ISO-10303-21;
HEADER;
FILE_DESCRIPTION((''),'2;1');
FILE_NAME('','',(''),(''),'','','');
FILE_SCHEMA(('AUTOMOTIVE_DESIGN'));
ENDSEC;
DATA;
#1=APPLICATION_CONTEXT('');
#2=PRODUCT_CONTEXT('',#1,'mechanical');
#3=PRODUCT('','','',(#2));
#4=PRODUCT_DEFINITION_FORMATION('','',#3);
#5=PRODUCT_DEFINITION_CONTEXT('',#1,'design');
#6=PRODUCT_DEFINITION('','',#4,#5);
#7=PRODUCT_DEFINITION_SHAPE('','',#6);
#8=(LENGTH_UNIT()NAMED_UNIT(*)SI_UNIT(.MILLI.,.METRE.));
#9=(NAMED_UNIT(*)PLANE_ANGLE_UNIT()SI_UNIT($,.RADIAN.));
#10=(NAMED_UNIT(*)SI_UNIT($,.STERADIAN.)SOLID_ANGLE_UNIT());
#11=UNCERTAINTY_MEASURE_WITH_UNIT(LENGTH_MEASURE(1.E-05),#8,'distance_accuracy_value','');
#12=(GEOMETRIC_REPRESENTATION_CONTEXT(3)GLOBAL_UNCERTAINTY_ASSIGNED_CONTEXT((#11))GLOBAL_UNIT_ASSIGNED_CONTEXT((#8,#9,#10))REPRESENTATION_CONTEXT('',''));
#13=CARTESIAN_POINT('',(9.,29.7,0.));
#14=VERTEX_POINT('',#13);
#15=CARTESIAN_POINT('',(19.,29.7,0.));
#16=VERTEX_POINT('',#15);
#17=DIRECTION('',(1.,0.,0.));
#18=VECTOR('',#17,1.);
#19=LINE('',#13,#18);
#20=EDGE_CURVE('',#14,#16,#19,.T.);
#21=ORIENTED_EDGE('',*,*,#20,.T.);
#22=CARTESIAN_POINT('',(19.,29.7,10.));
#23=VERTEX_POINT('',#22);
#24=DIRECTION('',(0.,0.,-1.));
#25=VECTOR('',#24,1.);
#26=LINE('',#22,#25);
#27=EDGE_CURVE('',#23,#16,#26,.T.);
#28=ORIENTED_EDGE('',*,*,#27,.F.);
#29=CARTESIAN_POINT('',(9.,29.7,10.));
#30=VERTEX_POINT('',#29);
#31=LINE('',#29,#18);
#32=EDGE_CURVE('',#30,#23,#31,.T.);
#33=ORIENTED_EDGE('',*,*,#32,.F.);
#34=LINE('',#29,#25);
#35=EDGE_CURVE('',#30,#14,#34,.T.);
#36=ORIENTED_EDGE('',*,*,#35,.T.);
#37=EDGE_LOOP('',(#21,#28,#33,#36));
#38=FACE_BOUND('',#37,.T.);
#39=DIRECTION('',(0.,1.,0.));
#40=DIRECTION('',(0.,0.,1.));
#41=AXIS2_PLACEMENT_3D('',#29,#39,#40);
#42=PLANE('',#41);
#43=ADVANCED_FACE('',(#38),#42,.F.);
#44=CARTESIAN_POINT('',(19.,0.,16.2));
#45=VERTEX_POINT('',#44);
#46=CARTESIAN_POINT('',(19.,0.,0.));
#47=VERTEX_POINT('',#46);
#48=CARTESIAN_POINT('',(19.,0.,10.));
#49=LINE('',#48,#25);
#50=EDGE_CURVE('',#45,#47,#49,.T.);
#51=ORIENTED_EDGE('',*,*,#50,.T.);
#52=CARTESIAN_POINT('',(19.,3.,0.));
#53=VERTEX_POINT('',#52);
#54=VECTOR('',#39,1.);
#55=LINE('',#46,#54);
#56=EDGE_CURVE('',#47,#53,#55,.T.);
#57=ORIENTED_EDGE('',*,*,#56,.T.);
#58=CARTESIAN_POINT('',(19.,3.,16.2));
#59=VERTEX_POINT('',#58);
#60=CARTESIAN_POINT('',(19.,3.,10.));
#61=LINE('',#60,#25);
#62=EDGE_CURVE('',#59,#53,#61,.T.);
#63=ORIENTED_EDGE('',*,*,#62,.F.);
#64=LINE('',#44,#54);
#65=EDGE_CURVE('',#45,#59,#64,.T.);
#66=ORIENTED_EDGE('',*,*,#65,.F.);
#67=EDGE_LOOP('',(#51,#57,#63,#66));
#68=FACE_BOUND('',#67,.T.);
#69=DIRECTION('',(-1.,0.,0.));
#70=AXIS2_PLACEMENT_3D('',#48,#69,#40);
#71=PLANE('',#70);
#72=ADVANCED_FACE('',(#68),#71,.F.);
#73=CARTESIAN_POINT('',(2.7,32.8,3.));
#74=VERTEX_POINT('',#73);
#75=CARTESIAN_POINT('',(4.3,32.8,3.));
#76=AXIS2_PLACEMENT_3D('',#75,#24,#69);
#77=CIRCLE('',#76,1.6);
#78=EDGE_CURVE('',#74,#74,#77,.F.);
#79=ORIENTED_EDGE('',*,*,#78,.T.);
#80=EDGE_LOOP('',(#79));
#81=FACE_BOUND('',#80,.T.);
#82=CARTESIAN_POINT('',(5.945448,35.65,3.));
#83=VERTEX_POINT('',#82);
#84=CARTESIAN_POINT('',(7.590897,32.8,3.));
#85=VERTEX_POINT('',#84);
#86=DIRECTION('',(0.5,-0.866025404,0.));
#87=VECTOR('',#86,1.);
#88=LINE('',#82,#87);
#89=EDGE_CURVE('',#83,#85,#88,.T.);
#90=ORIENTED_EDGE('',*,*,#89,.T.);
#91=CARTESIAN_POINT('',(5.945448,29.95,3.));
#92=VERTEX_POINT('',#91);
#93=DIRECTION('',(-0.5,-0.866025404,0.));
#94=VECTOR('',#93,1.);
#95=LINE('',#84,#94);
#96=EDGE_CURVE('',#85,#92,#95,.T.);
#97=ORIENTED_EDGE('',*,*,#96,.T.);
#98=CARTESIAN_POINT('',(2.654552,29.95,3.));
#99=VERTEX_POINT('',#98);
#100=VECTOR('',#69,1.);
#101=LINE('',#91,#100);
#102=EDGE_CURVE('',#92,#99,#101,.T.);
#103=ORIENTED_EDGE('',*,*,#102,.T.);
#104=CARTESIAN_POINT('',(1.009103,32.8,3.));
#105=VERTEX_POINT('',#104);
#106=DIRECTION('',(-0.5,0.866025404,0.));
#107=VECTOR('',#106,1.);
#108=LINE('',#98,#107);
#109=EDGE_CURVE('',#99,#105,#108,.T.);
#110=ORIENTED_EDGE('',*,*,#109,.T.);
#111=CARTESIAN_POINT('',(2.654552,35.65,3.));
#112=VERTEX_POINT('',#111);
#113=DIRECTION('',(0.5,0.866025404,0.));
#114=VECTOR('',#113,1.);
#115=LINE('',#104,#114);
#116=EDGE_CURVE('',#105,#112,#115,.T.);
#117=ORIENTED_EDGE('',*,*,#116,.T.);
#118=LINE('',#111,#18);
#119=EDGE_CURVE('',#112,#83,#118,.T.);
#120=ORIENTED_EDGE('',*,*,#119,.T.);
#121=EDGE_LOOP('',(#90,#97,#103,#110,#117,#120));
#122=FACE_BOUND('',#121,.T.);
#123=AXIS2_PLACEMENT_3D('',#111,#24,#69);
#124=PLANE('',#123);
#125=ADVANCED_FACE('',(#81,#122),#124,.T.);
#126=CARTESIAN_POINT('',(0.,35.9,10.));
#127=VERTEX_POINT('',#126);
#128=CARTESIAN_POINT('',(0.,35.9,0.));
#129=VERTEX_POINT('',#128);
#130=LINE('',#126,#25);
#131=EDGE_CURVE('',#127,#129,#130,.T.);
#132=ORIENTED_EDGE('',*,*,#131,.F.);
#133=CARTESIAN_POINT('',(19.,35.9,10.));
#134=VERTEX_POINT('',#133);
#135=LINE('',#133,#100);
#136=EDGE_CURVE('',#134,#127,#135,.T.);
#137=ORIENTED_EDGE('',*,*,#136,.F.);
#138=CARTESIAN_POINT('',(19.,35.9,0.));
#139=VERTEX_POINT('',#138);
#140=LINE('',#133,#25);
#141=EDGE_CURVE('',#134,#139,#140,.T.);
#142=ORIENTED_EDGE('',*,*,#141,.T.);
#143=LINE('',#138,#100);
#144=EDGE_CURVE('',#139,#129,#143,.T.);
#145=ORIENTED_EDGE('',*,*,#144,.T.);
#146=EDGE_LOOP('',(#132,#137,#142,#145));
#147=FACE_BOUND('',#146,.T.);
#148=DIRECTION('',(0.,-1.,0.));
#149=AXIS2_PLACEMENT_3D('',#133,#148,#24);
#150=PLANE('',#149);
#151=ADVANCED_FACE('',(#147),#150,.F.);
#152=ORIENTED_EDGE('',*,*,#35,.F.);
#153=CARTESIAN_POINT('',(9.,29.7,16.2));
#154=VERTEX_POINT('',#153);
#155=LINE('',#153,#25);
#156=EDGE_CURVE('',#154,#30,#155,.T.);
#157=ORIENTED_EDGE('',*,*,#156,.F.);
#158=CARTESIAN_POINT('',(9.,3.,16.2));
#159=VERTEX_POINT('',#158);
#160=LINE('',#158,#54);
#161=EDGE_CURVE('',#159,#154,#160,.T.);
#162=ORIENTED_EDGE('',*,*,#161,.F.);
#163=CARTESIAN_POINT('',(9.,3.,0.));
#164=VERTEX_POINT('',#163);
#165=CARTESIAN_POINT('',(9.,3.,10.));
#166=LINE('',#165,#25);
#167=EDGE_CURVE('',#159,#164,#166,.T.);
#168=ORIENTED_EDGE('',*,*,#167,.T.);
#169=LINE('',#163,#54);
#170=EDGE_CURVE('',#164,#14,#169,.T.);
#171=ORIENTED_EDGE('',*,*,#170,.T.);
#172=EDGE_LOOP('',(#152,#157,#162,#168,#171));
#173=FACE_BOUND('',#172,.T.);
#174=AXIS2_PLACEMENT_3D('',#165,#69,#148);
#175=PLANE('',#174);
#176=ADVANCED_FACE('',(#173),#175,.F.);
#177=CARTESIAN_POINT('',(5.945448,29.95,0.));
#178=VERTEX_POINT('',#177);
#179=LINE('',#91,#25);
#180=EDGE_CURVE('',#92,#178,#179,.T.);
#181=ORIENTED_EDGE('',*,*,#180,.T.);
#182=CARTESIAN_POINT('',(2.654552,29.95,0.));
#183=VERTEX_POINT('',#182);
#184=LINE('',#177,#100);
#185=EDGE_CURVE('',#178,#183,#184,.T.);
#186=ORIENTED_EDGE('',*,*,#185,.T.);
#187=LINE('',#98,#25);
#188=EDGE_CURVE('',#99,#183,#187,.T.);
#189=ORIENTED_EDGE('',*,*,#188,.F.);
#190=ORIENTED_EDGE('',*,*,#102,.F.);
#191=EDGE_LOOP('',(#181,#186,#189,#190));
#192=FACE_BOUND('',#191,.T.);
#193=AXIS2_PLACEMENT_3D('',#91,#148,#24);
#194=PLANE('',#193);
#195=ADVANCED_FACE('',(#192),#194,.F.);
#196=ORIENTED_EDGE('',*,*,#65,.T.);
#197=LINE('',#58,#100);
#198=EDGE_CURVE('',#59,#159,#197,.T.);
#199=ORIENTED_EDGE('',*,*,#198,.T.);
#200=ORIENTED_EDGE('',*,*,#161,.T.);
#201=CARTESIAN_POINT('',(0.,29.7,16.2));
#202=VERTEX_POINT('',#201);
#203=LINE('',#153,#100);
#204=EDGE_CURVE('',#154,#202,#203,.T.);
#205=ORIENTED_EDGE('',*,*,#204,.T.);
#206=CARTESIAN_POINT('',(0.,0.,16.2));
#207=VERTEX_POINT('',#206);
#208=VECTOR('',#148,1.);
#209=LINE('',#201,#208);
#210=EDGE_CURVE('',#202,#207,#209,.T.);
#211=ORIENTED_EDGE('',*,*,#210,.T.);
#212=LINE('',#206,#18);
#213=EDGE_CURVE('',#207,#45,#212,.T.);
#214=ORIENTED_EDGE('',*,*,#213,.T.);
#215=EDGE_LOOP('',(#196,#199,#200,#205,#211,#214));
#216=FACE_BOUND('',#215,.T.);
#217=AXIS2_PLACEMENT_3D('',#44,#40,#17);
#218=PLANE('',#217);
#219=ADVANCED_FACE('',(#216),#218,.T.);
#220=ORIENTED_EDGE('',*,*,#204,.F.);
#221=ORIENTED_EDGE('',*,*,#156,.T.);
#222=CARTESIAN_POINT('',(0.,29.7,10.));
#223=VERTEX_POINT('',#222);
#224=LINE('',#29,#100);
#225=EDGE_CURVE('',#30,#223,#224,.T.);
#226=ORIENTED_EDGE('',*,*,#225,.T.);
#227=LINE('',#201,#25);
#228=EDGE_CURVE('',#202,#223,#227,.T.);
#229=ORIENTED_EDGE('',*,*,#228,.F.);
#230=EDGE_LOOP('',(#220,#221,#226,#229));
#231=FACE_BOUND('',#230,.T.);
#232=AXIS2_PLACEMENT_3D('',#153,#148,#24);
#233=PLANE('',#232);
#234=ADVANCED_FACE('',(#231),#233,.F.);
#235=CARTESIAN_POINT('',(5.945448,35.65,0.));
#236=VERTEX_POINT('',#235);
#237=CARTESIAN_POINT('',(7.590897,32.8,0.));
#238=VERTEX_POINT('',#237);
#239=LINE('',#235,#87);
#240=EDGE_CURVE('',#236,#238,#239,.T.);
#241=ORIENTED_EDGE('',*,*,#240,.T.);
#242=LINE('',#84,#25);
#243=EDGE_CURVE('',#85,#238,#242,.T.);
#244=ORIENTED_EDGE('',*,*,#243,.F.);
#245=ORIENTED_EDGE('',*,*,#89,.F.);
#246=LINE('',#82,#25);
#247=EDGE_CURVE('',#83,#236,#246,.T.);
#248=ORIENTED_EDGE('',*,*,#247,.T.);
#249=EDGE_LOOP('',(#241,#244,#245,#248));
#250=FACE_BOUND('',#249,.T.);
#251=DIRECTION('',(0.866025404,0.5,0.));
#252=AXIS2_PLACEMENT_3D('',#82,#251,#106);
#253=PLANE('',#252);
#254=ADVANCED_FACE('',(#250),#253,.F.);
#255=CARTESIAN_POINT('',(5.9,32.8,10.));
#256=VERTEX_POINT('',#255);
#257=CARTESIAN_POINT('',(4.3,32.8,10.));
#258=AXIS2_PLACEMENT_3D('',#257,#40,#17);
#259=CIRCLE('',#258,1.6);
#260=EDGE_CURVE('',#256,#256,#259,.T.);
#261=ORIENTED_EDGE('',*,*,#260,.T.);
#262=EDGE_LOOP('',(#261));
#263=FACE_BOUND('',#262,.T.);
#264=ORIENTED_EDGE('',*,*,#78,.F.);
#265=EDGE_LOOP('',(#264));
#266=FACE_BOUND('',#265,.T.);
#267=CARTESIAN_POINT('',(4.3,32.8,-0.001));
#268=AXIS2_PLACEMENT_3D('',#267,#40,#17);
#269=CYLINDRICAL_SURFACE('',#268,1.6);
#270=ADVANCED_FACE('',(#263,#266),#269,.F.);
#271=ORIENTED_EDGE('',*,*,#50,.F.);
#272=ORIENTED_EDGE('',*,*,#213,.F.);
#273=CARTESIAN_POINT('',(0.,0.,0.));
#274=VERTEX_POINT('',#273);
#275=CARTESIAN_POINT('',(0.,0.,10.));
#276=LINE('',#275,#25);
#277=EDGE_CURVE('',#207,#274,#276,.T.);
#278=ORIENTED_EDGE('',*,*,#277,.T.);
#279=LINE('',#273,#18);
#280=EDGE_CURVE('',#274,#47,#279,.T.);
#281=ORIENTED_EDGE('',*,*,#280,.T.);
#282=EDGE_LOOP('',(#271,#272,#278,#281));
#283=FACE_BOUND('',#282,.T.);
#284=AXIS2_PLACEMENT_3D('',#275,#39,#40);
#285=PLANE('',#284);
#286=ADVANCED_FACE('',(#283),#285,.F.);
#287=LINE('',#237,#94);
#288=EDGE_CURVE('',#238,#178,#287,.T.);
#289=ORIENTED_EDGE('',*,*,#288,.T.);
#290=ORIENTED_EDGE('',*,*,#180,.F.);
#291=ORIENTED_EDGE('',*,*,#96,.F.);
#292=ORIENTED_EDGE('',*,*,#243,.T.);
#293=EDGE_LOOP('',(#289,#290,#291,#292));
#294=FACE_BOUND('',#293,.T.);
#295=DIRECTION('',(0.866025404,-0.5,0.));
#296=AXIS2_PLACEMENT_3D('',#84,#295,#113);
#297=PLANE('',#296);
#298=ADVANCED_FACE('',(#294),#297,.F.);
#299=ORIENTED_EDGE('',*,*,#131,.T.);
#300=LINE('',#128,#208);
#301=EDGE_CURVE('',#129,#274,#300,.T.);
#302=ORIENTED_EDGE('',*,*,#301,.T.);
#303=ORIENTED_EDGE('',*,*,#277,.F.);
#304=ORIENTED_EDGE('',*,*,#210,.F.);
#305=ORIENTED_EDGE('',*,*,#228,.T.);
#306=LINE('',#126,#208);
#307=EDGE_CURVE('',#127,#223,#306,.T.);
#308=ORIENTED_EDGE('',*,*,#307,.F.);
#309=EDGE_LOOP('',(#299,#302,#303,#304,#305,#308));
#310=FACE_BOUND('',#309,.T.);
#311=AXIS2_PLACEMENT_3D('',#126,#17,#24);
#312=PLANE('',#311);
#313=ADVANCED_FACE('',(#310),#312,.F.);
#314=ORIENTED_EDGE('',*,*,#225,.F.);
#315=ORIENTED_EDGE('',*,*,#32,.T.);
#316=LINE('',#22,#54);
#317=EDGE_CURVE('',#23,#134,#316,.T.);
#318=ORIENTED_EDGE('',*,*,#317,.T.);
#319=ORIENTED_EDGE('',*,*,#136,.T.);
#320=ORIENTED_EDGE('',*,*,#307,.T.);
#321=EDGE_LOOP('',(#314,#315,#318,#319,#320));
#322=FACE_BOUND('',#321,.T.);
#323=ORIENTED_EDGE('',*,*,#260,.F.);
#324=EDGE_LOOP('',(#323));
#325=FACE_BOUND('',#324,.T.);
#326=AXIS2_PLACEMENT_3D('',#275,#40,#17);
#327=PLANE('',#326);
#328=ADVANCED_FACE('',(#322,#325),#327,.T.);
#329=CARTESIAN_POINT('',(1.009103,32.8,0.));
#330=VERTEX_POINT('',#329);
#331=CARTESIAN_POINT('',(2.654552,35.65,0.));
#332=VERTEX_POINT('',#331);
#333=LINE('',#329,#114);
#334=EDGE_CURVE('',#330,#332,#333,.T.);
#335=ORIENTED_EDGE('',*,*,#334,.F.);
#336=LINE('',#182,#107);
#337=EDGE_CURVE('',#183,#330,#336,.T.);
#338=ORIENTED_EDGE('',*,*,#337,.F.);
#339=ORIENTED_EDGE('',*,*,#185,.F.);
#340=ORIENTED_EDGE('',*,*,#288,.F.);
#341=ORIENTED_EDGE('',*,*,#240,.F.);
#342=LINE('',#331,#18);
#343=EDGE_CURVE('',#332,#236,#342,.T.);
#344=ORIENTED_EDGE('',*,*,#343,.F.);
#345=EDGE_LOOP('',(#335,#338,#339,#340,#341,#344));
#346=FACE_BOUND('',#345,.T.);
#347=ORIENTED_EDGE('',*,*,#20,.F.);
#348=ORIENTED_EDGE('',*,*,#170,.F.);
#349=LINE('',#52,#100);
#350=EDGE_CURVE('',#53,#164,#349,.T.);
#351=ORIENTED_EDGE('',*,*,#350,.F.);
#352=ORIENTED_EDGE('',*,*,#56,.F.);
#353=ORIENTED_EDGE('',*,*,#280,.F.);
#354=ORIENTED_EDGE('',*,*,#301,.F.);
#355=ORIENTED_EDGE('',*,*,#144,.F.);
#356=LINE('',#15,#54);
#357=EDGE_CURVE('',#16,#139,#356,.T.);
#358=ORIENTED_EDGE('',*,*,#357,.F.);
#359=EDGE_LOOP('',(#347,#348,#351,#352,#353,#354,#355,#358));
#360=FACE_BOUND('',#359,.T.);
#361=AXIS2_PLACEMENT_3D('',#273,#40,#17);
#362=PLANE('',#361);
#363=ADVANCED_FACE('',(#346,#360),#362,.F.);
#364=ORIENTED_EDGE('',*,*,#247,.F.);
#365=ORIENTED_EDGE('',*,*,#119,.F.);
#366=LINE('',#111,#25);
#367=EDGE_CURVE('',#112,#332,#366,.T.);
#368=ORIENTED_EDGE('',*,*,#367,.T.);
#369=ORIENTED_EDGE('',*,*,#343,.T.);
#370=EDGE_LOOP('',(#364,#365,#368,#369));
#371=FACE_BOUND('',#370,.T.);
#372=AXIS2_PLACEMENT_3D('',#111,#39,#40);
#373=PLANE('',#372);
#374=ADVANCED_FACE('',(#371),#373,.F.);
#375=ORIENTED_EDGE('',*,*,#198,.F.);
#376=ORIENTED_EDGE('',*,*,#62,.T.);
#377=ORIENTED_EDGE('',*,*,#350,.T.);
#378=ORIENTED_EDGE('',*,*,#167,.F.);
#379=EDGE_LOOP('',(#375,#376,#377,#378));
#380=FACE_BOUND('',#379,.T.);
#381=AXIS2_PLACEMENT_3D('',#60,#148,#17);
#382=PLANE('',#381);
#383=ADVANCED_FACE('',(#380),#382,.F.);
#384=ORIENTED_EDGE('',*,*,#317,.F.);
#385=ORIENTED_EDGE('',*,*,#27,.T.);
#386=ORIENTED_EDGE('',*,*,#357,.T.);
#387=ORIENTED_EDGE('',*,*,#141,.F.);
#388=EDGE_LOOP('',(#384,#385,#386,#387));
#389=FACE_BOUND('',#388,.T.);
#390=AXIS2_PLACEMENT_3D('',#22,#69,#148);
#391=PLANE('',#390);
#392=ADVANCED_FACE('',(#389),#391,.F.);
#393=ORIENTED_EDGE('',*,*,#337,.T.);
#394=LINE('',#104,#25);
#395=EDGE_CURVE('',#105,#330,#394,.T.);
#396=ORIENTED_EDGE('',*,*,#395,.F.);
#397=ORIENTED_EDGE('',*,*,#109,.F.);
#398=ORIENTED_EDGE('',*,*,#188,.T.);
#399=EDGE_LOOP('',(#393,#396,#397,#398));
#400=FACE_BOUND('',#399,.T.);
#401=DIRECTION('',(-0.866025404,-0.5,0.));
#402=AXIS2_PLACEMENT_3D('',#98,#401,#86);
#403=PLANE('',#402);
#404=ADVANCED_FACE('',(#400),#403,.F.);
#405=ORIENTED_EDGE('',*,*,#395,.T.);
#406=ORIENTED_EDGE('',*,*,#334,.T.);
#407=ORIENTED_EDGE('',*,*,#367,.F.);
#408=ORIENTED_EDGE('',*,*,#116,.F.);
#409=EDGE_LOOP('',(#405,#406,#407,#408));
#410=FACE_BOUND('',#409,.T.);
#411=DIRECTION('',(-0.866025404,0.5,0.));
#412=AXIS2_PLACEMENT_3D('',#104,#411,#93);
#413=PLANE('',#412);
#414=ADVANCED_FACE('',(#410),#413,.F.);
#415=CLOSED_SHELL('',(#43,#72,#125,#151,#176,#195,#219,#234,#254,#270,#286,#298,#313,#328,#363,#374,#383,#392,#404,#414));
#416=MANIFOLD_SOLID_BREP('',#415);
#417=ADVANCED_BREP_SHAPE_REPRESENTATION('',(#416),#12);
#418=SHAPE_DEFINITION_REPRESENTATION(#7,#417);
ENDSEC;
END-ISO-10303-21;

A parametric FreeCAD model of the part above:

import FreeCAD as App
import Part
import Sketcher
from FreeCAD import Vector
Q = App.Units.Quantity


def add_polygon(sketch, points):
    """Adds a closed chain of lines whose ends are joined by coincident constraints."""
    first, n = sketch.GeometryCount, len(points)
    for a, b in zip(points, points[1:] + points[:1]):
        sketch.addGeometry(Part.LineSegment(App.Vector(*a, 0), App.Vector(*b, 0)), False)
    for i in range(n):
        sketch.addConstraint(Sketcher.Constraint("Coincident", first + i, 2, first + (i + 1) % n, 1))

doc = App.newDocument("Part")
params = doc.addObject("Spreadsheet::Sheet", "Params")
for row, (alias, value) in enumerate([
    ("sketch1_width", "19 mm"),
    ("sketch1_width2", "10 mm"),
    ("sketch1_height", "3 mm"),
    ("sketch1_height2", "26.7 mm"),
    ("sketch1_height3", "6.2 mm"),
    ("pad1_length", "10 mm"),
    ("sketch2_width", "9 mm"),
    ("sketch2_width2", "19 mm"),
    ("sketch2_height", "3 mm"),
    ("sketch2_height2", "29.7 mm"),
    ("pad2_length", "6.2 mm"),
    ("sketch3_diameter", "3.2 mm"),
    ("pocket2_length", "3 mm"),
], start=1):
    params.set(f"A{row}", alias)
    params.set(f"B{row}", "=" + value)
    params.setAlias(f"B{row}", alias)

body = doc.addObject("PartDesign::Body", "Body")

sketch1 = body.newObject("Sketcher::SketchObject", "Sketch")
sketch1.AttachmentSupport = (doc.getObject("XY_Plane"), [""])
sketch1.MapMode = "FlatFace"
add_polygon(sketch1, [(0, 0), (19, 0), (19, 3), (9, 3), (9, 29.7), (19, 29.7), (19, 35.9), (0, 35.9)])
sketch1.addConstraint([
    Sketcher.Constraint("Horizontal", 0),
    Sketcher.Constraint("Vertical", 1),
    Sketcher.Constraint("Horizontal", 2),
    Sketcher.Constraint("Vertical", 3),
    Sketcher.Constraint("Horizontal", 4),
    Sketcher.Constraint("Vertical", 5),
    Sketcher.Constraint("Horizontal", 6),
    Sketcher.Constraint("Vertical", 7),
    Sketcher.Constraint("Coincident", 7, 2, -1, 1),
    Sketcher.Constraint("Vertical", 1, 2, 4, 2),
    Sketcher.Constraint("DistanceX", 0, 1, 0, 2, Q("19 mm")),
    Sketcher.Constraint("DistanceX", 2, 2, 2, 1, Q("10 mm")),
    Sketcher.Constraint("DistanceY", 1, 1, 1, 2, Q("3 mm")),
    Sketcher.Constraint("DistanceY", 3, 1, 3, 2, Q("26.7 mm")),
    Sketcher.Constraint("DistanceY", 5, 1, 5, 2, Q("6.2 mm")),
])
sketch1.setExpression("Constraints[18]", "Params.sketch1_width")
sketch1.setExpression("Constraints[19]", "Params.sketch1_width2")
sketch1.setExpression("Constraints[20]", "Params.sketch1_height")
sketch1.setExpression("Constraints[21]", "Params.sketch1_height2")
sketch1.setExpression("Constraints[22]", "Params.sketch1_height3")
pad1 = body.newObject("PartDesign::Pad", "Pad")
pad1.Profile = sketch1
pad1.setExpression("Length", "Params.pad1_length")

sketch2 = body.newObject("Sketcher::SketchObject", "Sketch001")
sketch2.AttachmentSupport = (doc.getObject("XY_Plane"), [""])
sketch2.MapMode = "FlatFace"
sketch2.AttachmentOffset = App.Placement(Vector(0, 0, 10), App.Rotation())
add_polygon(sketch2, [(9, 29.7), (0, 29.7), (0, 0), (19, 0), (19, 3), (9, 3)])
sketch2.addConstraint([
    Sketcher.Constraint("Horizontal", 0),
    Sketcher.Constraint("Vertical", 1),
    Sketcher.Constraint("Horizontal", 2),
    Sketcher.Constraint("Vertical", 3),
    Sketcher.Constraint("Horizontal", 4),
    Sketcher.Constraint("Vertical", 5),
    Sketcher.Constraint("Coincident", 1, 2, -1, 1),
    Sketcher.Constraint("DistanceX", 0, 2, 0, 1, Q("9 mm")),
    Sketcher.Constraint("DistanceX", 2, 1, 2, 2, Q("19 mm")),
    Sketcher.Constraint("DistanceY", 3, 1, 3, 2, Q("3 mm")),
    Sketcher.Constraint("DistanceY", 1, 2, 1, 1, Q("29.7 mm")),
])
sketch2.setExpression("Constraints[13]", "Params.sketch2_width")
sketch2.setExpression("Constraints[14]", "Params.sketch2_width2")
sketch2.setExpression("Constraints[15]", "Params.sketch2_height")
sketch2.setExpression("Constraints[16]", "Params.sketch2_height2")
pad2 = body.newObject("PartDesign::Pad", "Pad001")
pad2.Profile = sketch2
pad2.setExpression("Length", "Params.pad2_length")

sketch3 = body.newObject("Sketcher::SketchObject", "Sketch002")
sketch3.AttachmentSupport = (doc.getObject("XY_Plane"), [""])
sketch3.MapMode = "FlatFace"
sketch3.AttachmentOffset = App.Placement(Vector(0, 0, 10), App.Rotation())
sketch3.addGeometry(Part.Circle(Vector(4.3, 32.8, 0), Vector(0, 0, 1), 1.6), False)
sketch3.addConstraint([
    Sketcher.Constraint("Diameter", 0, Q("3.2 mm")),
    Sketcher.Constraint("DistanceX", -1, 1, 0, 3, Q("4.3 mm")),
    Sketcher.Constraint("DistanceY", -1, 1, 0, 3, Q("32.8 mm")),
])
sketch3.setExpression("Constraints[0]", "Params.sketch3_diameter")
pocket1 = body.newObject("PartDesign::Pocket", "Pocket")
pocket1.Profile = sketch3
pocket1.Type = "UpToFirst"

sketch4 = body.newObject("Sketcher::SketchObject", "Sketch003")
sketch4.AttachmentSupport = (doc.getObject("XY_Plane"), [""])
sketch4.MapMode = "FlatFace"
add_polygon(sketch4, [(2.654552, 35.65), (5.945448, 35.65), (7.590897, 32.8), (5.945448, 29.95), (2.654552, 29.95), (1.009103, 32.8)])
sketch4.addConstraint([
    Sketcher.Constraint("Horizontal", 0),
    Sketcher.Constraint("Horizontal", 3),
    Sketcher.Constraint("Parallel", 1, 4),
    Sketcher.Constraint("Parallel", 2, 5),
    Sketcher.Constraint("Horizontal", 1, 2, 4, 2),
    Sketcher.Constraint("Vertical", 0, 2, 2, 2),
    Sketcher.Constraint("Vertical", 3, 2, 5, 2),
    Sketcher.Constraint("Angle", 1, Q("-60 deg")),
    Sketcher.Constraint("DistanceY", -1, 1, 1, 2, Q("32.8 mm")),
    Sketcher.Constraint("DistanceY", 2, 2, 0, 2, Q("5.7 mm")),
    Sketcher.Constraint("DistanceX", 0, 1, 0, 2, Q("3.290897 mm")),
    Sketcher.Constraint("DistanceX", -1, 1, 0, 2, Q("5.945448 mm")),
])
pocket2 = body.newObject("PartDesign::Pocket", "Pocket001")
pocket2.Profile = sketch4
pocket2.setExpression("Length", "Params.pocket2_length")
pocket2.Reversed = True

doc.recompute()
